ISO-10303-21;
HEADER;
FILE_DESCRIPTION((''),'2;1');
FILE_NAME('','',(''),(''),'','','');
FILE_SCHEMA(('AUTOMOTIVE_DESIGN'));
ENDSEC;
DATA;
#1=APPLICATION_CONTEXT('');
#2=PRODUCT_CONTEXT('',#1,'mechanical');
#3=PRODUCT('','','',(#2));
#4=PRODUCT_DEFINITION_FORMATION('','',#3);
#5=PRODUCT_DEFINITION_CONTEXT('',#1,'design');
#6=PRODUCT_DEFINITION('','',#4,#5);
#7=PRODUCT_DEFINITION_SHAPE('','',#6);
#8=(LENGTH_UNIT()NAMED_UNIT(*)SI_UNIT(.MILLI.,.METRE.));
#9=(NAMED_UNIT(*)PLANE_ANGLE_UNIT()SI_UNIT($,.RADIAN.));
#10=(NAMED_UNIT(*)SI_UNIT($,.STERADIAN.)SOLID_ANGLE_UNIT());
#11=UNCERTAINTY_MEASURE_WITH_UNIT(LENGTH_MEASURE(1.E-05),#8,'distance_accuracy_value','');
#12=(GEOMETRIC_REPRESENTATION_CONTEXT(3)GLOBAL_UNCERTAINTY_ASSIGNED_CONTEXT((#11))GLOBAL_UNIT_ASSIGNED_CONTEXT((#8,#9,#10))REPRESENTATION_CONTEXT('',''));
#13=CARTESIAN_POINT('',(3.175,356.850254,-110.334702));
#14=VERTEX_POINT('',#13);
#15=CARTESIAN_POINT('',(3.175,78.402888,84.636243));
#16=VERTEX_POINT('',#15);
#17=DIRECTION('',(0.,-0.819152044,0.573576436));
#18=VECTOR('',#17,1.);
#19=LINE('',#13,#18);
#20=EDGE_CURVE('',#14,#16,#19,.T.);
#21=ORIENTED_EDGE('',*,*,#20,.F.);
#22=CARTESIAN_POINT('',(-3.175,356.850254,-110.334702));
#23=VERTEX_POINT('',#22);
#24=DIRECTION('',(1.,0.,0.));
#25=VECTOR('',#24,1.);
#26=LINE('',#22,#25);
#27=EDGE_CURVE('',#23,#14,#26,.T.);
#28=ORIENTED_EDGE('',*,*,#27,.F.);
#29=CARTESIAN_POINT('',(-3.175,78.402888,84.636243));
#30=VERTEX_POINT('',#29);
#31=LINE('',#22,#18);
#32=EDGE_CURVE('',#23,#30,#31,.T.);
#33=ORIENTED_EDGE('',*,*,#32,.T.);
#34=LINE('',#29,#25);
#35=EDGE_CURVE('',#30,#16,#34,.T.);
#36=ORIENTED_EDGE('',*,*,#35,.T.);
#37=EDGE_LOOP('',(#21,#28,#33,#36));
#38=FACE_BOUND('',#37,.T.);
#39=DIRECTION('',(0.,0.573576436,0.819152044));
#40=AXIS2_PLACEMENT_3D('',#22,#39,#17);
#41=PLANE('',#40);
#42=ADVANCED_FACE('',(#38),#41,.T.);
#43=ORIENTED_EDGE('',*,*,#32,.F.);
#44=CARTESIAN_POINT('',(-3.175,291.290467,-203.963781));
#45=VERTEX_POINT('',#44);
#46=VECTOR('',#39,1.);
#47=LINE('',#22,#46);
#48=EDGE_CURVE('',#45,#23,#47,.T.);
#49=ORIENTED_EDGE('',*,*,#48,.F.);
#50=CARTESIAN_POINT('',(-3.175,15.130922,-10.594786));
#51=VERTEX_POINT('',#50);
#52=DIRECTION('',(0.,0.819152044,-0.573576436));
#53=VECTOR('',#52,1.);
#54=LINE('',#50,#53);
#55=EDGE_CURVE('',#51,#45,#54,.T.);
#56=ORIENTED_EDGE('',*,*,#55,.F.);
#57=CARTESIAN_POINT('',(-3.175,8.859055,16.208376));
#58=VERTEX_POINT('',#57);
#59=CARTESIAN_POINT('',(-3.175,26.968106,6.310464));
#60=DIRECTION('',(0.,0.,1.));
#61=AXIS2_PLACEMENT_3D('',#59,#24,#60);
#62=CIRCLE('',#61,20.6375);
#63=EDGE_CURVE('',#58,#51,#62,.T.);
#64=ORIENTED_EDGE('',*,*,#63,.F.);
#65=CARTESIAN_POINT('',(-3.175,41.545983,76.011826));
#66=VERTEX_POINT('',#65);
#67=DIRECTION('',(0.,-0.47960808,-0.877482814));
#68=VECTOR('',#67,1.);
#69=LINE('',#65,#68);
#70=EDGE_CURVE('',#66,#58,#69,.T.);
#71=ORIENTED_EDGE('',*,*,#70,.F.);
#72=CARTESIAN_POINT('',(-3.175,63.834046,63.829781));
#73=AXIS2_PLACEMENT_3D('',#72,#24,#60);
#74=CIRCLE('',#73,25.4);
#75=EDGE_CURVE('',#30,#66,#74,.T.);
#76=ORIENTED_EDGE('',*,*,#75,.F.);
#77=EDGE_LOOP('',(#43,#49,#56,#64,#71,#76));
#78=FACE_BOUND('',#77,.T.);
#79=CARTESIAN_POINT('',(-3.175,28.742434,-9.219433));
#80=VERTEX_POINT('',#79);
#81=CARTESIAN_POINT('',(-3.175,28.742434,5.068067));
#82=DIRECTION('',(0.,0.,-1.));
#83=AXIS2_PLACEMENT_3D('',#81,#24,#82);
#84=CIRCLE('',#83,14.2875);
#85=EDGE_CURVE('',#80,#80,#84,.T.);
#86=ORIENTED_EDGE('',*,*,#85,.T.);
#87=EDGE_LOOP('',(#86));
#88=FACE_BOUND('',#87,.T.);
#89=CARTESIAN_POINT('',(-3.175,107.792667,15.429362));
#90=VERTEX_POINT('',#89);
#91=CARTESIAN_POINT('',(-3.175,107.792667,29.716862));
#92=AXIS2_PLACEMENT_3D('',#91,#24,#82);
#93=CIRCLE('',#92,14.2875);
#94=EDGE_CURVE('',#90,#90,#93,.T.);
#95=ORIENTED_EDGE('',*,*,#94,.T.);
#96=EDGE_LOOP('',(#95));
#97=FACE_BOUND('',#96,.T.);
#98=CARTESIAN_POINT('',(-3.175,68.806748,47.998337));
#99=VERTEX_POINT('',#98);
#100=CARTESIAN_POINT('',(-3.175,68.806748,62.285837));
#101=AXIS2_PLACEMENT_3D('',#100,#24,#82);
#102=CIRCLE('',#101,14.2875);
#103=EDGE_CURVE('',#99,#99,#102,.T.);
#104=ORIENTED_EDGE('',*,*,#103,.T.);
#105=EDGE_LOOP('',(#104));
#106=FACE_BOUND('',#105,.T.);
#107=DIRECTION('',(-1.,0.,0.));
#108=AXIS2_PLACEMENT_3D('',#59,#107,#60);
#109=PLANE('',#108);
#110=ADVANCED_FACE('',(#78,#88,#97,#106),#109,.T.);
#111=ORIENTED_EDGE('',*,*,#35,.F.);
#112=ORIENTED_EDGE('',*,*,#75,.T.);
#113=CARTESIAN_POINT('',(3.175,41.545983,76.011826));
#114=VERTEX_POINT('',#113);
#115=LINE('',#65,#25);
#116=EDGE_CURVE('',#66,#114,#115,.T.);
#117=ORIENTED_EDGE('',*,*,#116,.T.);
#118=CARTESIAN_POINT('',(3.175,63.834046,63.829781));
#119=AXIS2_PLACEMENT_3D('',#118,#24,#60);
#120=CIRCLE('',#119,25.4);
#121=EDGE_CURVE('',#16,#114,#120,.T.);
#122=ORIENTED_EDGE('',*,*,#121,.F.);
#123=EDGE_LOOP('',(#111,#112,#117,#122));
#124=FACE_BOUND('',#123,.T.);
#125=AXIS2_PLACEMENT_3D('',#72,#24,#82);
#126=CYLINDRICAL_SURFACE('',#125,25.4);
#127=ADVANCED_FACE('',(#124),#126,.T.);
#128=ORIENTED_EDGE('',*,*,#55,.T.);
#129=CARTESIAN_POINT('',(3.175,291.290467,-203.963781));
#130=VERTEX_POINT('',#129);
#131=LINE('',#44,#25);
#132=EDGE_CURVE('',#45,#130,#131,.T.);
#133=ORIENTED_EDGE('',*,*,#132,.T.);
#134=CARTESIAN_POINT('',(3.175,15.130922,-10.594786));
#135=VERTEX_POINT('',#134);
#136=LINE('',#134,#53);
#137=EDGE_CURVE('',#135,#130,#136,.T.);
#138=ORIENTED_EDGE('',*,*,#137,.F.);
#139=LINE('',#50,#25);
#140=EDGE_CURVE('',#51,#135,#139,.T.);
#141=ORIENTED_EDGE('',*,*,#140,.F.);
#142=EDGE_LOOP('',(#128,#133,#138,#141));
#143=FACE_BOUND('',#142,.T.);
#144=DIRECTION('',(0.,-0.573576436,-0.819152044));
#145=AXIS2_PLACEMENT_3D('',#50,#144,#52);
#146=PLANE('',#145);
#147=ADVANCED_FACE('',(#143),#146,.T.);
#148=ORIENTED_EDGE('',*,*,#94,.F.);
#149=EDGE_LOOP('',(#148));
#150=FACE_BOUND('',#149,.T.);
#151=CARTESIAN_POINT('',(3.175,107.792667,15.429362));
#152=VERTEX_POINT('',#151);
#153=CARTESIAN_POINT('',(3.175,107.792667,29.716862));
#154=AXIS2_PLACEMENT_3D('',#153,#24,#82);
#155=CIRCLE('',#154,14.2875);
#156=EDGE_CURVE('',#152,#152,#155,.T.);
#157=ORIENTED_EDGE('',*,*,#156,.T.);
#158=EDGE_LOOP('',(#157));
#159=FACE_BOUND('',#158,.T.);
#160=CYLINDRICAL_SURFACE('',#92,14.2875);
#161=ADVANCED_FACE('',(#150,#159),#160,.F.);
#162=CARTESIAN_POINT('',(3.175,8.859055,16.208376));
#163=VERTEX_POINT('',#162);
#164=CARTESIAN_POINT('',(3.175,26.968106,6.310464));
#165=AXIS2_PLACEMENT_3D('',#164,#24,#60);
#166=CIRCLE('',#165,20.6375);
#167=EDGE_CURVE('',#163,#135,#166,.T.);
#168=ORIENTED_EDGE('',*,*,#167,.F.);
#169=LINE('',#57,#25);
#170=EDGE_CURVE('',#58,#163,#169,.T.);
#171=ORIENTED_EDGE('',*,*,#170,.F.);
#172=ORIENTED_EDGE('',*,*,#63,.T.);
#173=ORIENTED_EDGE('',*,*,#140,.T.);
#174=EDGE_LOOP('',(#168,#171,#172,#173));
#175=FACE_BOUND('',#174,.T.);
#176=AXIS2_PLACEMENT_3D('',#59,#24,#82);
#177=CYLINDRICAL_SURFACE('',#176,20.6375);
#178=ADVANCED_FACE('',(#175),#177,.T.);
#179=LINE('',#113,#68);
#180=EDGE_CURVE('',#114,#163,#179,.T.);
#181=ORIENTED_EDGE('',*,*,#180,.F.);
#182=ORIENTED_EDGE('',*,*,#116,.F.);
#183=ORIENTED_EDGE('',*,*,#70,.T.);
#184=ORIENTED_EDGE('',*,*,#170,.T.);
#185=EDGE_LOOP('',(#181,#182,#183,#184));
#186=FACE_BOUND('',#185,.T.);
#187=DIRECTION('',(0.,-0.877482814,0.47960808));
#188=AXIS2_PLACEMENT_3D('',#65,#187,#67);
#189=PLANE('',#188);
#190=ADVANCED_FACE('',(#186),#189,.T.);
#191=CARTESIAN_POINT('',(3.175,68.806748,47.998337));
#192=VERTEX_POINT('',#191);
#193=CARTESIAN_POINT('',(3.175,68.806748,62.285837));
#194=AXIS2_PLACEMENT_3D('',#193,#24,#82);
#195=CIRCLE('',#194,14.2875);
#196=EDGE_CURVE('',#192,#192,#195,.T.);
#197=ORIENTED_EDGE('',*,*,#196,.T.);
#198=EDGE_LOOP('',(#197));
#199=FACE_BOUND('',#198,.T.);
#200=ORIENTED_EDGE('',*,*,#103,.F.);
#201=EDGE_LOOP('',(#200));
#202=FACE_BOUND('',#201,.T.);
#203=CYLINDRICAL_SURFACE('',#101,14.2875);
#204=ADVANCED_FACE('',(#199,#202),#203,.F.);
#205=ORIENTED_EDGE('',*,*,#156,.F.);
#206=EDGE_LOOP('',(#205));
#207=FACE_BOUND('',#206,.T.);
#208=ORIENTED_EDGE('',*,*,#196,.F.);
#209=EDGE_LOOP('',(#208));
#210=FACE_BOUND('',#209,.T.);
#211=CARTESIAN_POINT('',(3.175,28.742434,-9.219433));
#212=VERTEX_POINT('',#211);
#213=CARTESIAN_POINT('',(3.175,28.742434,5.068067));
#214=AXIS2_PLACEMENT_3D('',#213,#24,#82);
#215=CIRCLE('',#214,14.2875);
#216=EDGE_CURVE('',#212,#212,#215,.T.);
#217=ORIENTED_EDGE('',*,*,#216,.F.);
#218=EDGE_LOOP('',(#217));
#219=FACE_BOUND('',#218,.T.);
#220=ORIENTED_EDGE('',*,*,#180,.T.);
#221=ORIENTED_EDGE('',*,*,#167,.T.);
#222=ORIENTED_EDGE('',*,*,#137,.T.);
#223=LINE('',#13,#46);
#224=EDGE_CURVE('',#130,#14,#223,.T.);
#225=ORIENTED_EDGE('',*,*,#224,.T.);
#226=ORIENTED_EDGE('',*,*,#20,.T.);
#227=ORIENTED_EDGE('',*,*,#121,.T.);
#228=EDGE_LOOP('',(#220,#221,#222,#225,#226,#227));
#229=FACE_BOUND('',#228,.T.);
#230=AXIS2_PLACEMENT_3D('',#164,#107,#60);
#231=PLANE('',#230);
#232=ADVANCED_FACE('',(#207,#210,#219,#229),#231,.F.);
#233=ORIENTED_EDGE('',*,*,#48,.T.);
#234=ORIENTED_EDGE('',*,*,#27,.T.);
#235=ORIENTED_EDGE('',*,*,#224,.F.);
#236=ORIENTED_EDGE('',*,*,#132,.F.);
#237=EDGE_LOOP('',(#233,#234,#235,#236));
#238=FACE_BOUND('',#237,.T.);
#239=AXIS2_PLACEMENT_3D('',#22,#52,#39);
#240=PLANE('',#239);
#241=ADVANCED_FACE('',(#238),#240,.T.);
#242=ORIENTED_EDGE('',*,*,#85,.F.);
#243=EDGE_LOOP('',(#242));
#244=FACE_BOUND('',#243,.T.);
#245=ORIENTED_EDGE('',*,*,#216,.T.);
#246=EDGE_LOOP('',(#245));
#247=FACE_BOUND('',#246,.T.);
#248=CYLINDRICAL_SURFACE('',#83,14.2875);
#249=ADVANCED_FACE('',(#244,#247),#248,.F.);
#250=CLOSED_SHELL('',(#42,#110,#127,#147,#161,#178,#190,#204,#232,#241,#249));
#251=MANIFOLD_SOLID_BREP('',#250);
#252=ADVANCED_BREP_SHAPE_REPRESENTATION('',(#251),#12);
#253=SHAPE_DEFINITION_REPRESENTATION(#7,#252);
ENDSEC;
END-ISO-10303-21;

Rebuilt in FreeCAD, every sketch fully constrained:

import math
import FreeCAD as App
import Part
import Sketcher
Q = App.Units.Quantity

doc = App.newDocument("Part")
body = doc.addObject("PartDesign::Body", "Body")

sketch1 = body.newObject("Sketcher::SketchObject", "Sketch")
sketch1.AttachmentSupport = (doc.getObject("YZ_Plane"), [""])
sketch1.MapMode = "FlatFace"
sketch1.addGeometry(Part.LineSegment(App.Vector(15.130922, -10.594786, 0), App.Vector(291.290467, -203.963781, 0)), False)
sketch1.addGeometry(Part.LineSegment(App.Vector(291.290467, -203.963781, 0), App.Vector(356.850254, -110.334702, 0)), False)
sketch1.addGeometry(Part.LineSegment(App.Vector(356.850254, -110.334702, 0), App.Vector(78.402888, 84.636242, 0)), False)
sketch1.addGeometry(Part.ArcOfCircle(Part.Circle(App.Vector(63.834046, 63.829781, 0), App.Vector(0, 0, 1), 25.4), math.radians(55), math.radians(151.340192)), False)
sketch1.addGeometry(Part.LineSegment(App.Vector(41.545983, 76.011826, 0), App.Vector(8.859055, 16.208376, 0)), False)
sketch1.addGeometry(Part.ArcOfCircle(Part.Circle(App.Vector(26.968106, 6.310464, 0), App.Vector(0, 0, 1), 20.6375), math.radians(151.340192), math.radians(235)), False)
sketch1.addGeometry(Part.Circle(App.Vector(28.742434, 5.068067, 0), App.Vector(0, 0, 1), 14.2875), False)
sketch1.addGeometry(Part.Circle(App.Vector(68.806748, 62.285837, 0), App.Vector(0, 0, 1), 14.2875), False)
sketch1.addGeometry(Part.Circle(App.Vector(107.792667, 29.716862, 0), App.Vector(0, 0, 1), 14.2875), False)
sketch1.addConstraint(Sketcher.Constraint("Coincident", 0, 2, 1, 1))
sketch1.addConstraint(Sketcher.Constraint("Coincident", 1, 2, 2, 1))
sketch1.addConstraint(Sketcher.Constraint("Tangent", 2, 2, 3, 1))
sketch1.addConstraint(Sketcher.Constraint("Tangent", 3, 2, 4, 1))
sketch1.addConstraint(Sketcher.Constraint("Tangent", 4, 2, 5, 1))
sketch1.addConstraint(Sketcher.Constraint("Tangent", 5, 2, 0, 1))
sketch1.addConstraint(Sketcher.Constraint("Equal", 6, 7))
sketch1.addConstraint(Sketcher.Constraint("Equal", 7, 8))
sketch1.addConstraint(Sketcher.Constraint("Perpendicular", 0, 1))
sketch1.addConstraint(Sketcher.Constraint("Perpendicular", 1, 2))
sketch1.addConstraint(Sketcher.Constraint("Radius", 3, Q("1 in")))
sketch1.addConstraint(Sketcher.Constraint("Diameter", 6, Q("1.125 in")))
sketch1.addConstraint(Sketcher.Constraint("Angle", 0, Q("-35 deg")))
sketch1.addConstraint(Sketcher.Constraint("Radius", 5, Q("0.8125 in")))
sketch1.addConstraint(Sketcher.Constraint("Distance", 1, Q("4.5 in")))
sketch1.addConstraint(Sketcher.Constraint("DistanceX", 3, 3, 7, 3, Q("4.972702 mm")))
sketch1.addConstraint(Sketcher.Constraint("DistanceX", 8, 3, 0, 2, Q("183.4978 mm")))
sketch1.addConstraint(Sketcher.Constraint("Distance", 2, Q("339.921469 mm")))
sketch1.addConstraint(Sketcher.Constraint("DistanceY", -1, 1, 3, 3, Q("63.829781 mm")))
sketch1.addConstraint(Sketcher.Constraint("DistanceX", -1, 1, 7, 3, Q("68.806748 mm")))
sketch1.addConstraint(Sketcher.Constraint("DistanceY", -1, 1, 8, 3, Q("29.716862 mm")))
sketch1.addConstraint(Sketcher.Constraint("DistanceX", 5, 3, 3, 3, Q("36.86594 mm")))
sketch1.addConstraint(Sketcher.Constraint("DistanceY", 6, 3, 7, 3, Q("57.21777 mm")))
sketch1.addConstraint(Sketcher.Constraint("DistanceY", 1, 2, 7, 3, Q("172.620539 mm")))
sketch1.addConstraint(Sketcher.Constraint("DistanceX", 6, 3, 1, 2, Q("328.10782 mm")))
pad1 = body.newObject("PartDesign::Pad", "Pad")
pad1.Profile = sketch1
pad1.Type = "TwoLengths"
pad1.Length = Q("0.125 in")
pad1.Length2 = Q("0.125 in")

doc.recompute()
